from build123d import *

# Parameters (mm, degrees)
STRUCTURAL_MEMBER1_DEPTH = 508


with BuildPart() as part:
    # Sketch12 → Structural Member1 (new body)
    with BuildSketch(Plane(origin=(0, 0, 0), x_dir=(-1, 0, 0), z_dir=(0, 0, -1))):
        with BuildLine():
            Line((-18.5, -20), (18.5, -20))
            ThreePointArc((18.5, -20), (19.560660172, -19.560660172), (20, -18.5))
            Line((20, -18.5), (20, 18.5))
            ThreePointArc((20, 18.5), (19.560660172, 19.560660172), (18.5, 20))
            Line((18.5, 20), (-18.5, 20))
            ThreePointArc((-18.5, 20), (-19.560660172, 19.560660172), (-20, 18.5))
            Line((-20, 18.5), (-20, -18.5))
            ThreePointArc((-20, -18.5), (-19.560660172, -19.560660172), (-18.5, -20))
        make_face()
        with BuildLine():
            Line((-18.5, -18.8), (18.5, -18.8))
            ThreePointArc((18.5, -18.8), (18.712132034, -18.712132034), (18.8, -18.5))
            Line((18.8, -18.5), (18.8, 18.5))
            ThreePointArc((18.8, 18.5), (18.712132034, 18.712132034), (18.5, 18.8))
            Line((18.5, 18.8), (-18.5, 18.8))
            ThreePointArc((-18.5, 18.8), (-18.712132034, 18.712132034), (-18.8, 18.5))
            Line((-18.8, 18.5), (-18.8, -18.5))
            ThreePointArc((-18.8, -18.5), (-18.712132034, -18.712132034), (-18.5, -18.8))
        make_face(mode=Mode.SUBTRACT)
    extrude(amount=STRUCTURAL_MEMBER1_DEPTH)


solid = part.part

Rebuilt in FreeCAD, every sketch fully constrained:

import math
import FreeCAD as App
import Part
import Sketcher

doc = App.newDocument("Part")
body = doc.addObject("PartDesign::Body", "Body")

sketch1 = body.newObject("Sketcher::SketchObject", "Sketch")
sketch1.AttachmentSupport = (doc.getObject("XY_Plane"), [""])
sketch1.MapMode = "FlatFace"
sketch1.addGeometry([
    Part.LineSegment(App.Vector(18.5, -20, 0), App.Vector(-18.5, -20, 0)),
    Part.ArcOfCircle(Part.Circle(App.Vector(-18.5, -18.5, 0), App.Vector(0, 0, 1), 1.5), math.radians(180), math.radians(270)),
    Part.LineSegment(App.Vector(-20, -18.5, 0), App.Vector(-20, 18.5, 0)),
    Part.ArcOfCircle(Part.Circle(App.Vector(-18.5, 18.5, 0), App.Vector(0, 0, 1), 1.5), math.radians(90), math.radians(180)),
    Part.LineSegment(App.Vector(-18.5, 20, 0), App.Vector(18.5, 20, 0)),
    Part.ArcOfCircle(Part.Circle(App.Vector(18.5, 18.5, 0), App.Vector(0, 0, 1), 1.5), math.radians(0), math.radians(90)),
    Part.LineSegment(App.Vector(20, 18.5, 0), App.Vector(20, -18.5, 0)),
    Part.ArcOfCircle(Part.Circle(App.Vector(18.5, -18.5, 0), App.Vector(0, 0, 1), 1.5), math.radians(-90), math.radians(0)),
    Part.LineSegment(App.Vector(-18.5, -18.8, 0), App.Vector(18.5, -18.8, 0)),
    Part.ArcOfCircle(Part.Circle(App.Vector(18.5, -18.5, 0), App.Vector(0, 0, 1), 0.3), math.radians(-90), math.radians(0)),
    Part.LineSegment(App.Vector(18.8, -18.5, 0), App.Vector(18.8, 18.5, 0)),
    Part.ArcOfCircle(Part.Circle(App.Vector(18.5, 18.5, 0), App.Vector(0, 0, 1), 0.3), math.radians(0), math.radians(90)),
    Part.LineSegment(App.Vector(18.5, 18.8, 0), App.Vector(-18.5, 18.8, 0)),
    Part.ArcOfCircle(Part.Circle(App.Vector(-18.5, 18.5, 0), App.Vector(0, 0, 1), 0.3), math.radians(90), math.radians(180)),
    Part.LineSegment(App.Vector(-18.8, 18.5, 0), App.Vector(-18.8, -18.5, 0)),
    Part.ArcOfCircle(Part.Circle(App.Vector(-18.5, -18.5, 0), App.Vector(0, 0, 1), 0.3), math.radians(-180), math.radians(-90)),
], False)
sketch1.addConstraint([
    Sketcher.Constraint("Tangent", 0, 2, 1, 2),
    Sketcher.Constraint("Tangent", 1, 1, 2, 1),
    Sketcher.Constraint("Tangent", 2, 2, 3, 2),
    Sketcher.Constraint("Tangent", 3, 1, 4, 1),
    Sketcher.Constraint("Tangent", 4, 2, 5, 2),
    Sketcher.Constraint("Tangent", 5, 1, 6, 1),
    Sketcher.Constraint("Tangent", 6, 2, 7, 2),
    Sketcher.Constraint("Tangent", 7, 1, 0, 1),
    Sketcher.Constraint("Tangent", 8, 2, 9, 1),
    Sketcher.Constraint("Tangent", 9, 2, 10, 1),
    Sketcher.Constraint("Tangent", 10, 2, 11, 1),
    Sketcher.Constraint("Tangent", 11, 2, 12, 1),
    Sketcher.Constraint("Tangent", 12, 2, 13, 1),
    Sketcher.Constraint("Tangent", 13, 2, 14, 1),
    Sketcher.Constraint("Tangent", 14, 2, 15, 1),
    Sketcher.Constraint("Tangent", 15, 2, 8, 1),
    Sketcher.Constraint("Horizontal", 0),
    Sketcher.Constraint("Vertical", 2),
    Sketcher.Constraint("Horizontal", 4),
    Sketcher.Constraint("Vertical", 6),
    Sketcher.Constraint("Horizontal", 8),
    Sketcher.Constraint("Vertical", 10),
    Sketcher.Constraint("Horizontal", 12),
    Sketcher.Constraint("Vertical", 14),
    Sketcher.Constraint("Coincident", 9, 3, 7, 3),
    Sketcher.Constraint("Coincident", 11, 3, 5, 3),
    Sketcher.Constraint("Coincident", 13, 3, 3, 3),
    Sketcher.Constraint("Equal", 1, 3),
    Sketcher.Constraint("Equal", 3, 5),
    Sketcher.Constraint("Equal", 5, 7),
    Sketcher.Constraint("Equal", 13, 15),
    Sketcher.Constraint("Symmetric", 1, 3, 5, 3, -1, 1),
    Sketcher.Constraint("Equal", 12, 2),
    Sketcher.Constraint("Radius", 1, 1.5),
    Sketcher.Constraint("Radius", 9, 0.3),
    Sketcher.Constraint("DistanceX", 0, 2, 0, 1, 37.0),
])
pad1 = body.newObject("PartDesign::Pad", "Pad")
pad1.Profile = sketch1
pad1.Length = 508
pad1.Reversed = True

doc.recompute()
